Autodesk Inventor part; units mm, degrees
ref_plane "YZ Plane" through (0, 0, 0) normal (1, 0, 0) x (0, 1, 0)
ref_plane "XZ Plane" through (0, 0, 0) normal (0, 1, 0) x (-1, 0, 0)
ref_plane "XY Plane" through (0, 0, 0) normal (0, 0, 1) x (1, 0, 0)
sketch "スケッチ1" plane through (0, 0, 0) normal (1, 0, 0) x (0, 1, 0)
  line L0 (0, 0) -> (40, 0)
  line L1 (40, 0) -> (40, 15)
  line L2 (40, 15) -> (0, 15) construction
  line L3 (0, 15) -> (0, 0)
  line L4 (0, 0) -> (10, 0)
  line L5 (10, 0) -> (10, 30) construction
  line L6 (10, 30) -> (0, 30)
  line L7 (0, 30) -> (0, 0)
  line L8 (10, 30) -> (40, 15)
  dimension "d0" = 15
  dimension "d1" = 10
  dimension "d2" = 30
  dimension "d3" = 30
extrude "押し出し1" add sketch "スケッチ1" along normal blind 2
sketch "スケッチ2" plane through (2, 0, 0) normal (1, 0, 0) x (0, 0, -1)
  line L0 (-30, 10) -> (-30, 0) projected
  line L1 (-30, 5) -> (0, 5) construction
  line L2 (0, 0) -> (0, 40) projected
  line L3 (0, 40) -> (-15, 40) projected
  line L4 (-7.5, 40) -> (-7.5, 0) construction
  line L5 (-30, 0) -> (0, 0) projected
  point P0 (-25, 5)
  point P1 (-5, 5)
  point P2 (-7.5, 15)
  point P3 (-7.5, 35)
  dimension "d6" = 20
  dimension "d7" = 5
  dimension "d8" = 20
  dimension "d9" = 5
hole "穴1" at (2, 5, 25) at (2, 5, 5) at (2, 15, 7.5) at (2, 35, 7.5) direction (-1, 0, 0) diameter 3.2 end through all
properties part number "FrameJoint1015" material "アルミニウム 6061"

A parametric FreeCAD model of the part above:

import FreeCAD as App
import Part
import Sketcher

V = App.Vector
Q = App.Units.Quantity


def add_polygon(sketch, points):
    """Adds a closed chain of lines whose ends are joined by coincident constraints."""
    first, n = sketch.GeometryCount, len(points)
    for a, b in zip(points, points[1:] + points[:1]):
        sketch.addGeometry(Part.LineSegment(App.Vector(*a, 0), App.Vector(*b, 0)), False)
    for i in range(n):
        sketch.addConstraint(Sketcher.Constraint("Coincident", first + i, 2, first + (i + 1) % n, 1))

doc = App.newDocument("Part")
body = doc.addObject("PartDesign::Body", "Body")

# Sketch on YZ plane
sketch1 = doc.addObject("Sketcher::SketchObject", "Sketch")
body.addObject(sketch1)
sketch1.AttachmentSupport = (doc.YZ_Plane, [""])
sketch1.MapMode = "FlatFace"
add_polygon(sketch1, [(0, 30), (0, 0), (40, 0), (40, 15), (10, 30)])  # lines 0-4
sketch1.addConstraint([
    Sketcher.Constraint("Vertical", 0),
    Sketcher.Constraint("Horizontal", 1),
    Sketcher.Constraint("Vertical", 2),
    Sketcher.Constraint("Horizontal", 4),
    Sketcher.Constraint("Coincident", 0, 2, -1, 1),
    Sketcher.Constraint("DistanceX", 4, 2, 4, 1, Q("10 mm")),
    Sketcher.Constraint("DistanceY", 0, 2, 0, 1, Q("30 mm")),
    Sketcher.Constraint("DistanceY", 2, 1, 2, 2, Q("15 mm")),
    Sketcher.Constraint("DistanceX", 3, 2, 2, 2, Q("30 mm")),
])
pad1 = doc.addObject("PartDesign::Pad", "Pad")
body.addObject(pad1)
pad1.Profile = sketch1
pad1.Length = 2

# Sketch on YZ plane
sketch2 = doc.addObject("Sketcher::SketchObject", "Sketch001")
body.addObject(sketch2)
sketch2.AttachmentSupport = (doc.YZ_Plane, [""])
sketch2.MapMode = "FlatFace"
sketch2.AttachmentOffset = App.Placement(V(0, 0, 2), App.Rotation())
sketch2.addGeometry([
    Part.Circle(V(5, 25, 0), V(0, 0, 1), 1.6),
    Part.Circle(V(5, 5, 0), V(0, 0, 1), 1.6),
    Part.Circle(V(15, 7.5, 0), V(0, 0, 1), 1.6),
    Part.Circle(V(35, 7.5, 0), V(0, 0, 1), 1.6),
], False)
sketch2.addConstraint([
    Sketcher.Constraint("Equal", 0, 1),
    Sketcher.Constraint("Equal", 1, 2),
    Sketcher.Constraint("Equal", 2, 3),
    Sketcher.Constraint("Horizontal", 2, 3, 3, 3),
    Sketcher.Constraint("Vertical", 0, 3, 1, 3),
    Sketcher.Constraint("Diameter", 0, Q("3.2 mm")),
    Sketcher.Constraint("DistanceX", -1, 1, 0, 3, Q("5 mm")),
    Sketcher.Constraint("DistanceY", -1, 1, 0, 3, Q("25 mm")),
    Sketcher.Constraint("DistanceY", -1, 1, 1, 3, Q("5 mm")),
    Sketcher.Constraint("DistanceX", -1, 1, 2, 3, Q("15 mm")),
    Sketcher.Constraint("DistanceX", -1, 1, 3, 3, Q("35 mm")),
    Sketcher.Constraint("DistanceY", -1, 1, 2, 3, Q("7.5 mm")),
])
doc.recompute()
hole = doc.addObject("PartDesign::Hole", "Hole")
body.addObject(hole)
hole.Profile = sketch2
hole.ThreadType = "None"
hole.Diameter = 3.2
hole.DepthType = "ThroughAll"

doc.recompute()
